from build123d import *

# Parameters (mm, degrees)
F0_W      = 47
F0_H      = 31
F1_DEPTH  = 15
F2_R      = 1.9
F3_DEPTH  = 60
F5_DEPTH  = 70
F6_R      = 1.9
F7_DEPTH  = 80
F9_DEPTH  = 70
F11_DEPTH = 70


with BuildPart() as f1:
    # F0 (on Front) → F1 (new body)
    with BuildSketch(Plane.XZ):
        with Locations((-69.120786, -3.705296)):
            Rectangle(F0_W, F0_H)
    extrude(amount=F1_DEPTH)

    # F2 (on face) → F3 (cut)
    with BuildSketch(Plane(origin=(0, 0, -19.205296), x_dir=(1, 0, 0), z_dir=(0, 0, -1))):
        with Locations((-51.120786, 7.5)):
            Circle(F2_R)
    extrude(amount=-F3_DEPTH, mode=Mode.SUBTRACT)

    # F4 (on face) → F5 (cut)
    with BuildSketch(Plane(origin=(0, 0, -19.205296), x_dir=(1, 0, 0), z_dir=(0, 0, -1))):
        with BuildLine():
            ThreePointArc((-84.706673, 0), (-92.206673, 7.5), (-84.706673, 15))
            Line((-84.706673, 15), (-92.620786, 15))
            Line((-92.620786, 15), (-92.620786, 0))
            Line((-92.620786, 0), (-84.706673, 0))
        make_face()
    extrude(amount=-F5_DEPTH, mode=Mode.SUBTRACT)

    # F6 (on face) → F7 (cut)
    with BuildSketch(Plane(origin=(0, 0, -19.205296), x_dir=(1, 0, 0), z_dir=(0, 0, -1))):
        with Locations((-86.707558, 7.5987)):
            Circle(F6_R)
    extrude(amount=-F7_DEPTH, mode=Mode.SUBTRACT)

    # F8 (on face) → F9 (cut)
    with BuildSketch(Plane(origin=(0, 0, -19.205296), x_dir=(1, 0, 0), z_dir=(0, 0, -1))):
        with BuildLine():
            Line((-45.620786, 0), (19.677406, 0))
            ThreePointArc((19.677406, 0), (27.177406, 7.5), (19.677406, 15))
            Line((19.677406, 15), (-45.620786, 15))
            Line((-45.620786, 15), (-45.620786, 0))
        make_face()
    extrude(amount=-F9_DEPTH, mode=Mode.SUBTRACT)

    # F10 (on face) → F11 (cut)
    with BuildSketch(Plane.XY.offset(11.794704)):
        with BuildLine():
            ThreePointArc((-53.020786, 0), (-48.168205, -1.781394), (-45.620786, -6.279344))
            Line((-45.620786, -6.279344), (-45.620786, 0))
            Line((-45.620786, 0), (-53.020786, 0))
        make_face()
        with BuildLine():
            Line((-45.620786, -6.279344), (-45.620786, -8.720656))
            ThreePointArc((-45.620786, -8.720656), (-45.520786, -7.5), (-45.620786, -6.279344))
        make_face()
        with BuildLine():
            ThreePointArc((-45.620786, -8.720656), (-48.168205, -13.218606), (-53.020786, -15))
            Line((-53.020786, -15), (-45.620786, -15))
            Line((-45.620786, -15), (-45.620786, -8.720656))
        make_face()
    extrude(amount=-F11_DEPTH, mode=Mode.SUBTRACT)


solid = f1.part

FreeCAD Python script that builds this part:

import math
import FreeCAD as App
import Part
import Sketcher

V = App.Vector
Q = App.Units.Quantity


def add_polygon(sketch, points):
    """Adds a closed chain of lines whose ends are joined by coincident constraints."""
    first, n = sketch.GeometryCount, len(points)
    for a, b in zip(points, points[1:] + points[:1]):
        sketch.addGeometry(Part.LineSegment(App.Vector(*a, 0), App.Vector(*b, 0)), False)
    for i in range(n):
        sketch.addConstraint(Sketcher.Constraint("Coincident", first + i, 2, first + (i + 1) % n, 1))

doc = App.newDocument("Part")
params = doc.addObject("Spreadsheet::Sheet", "Params")
for row, (alias, value) in enumerate([
    ("sketch1_width", "47 mm"),
    ("sketch1_height", "31 mm"),
    ("pad1_length", "15 mm"),
    ("sketch2_diameter", "3.8 mm"),
    ("pocket1_length", "60 mm"),
    ("sketch3_radius", "7.5 mm"),
    ("pocket2_length", "70 mm"),
    ("sketch4_diameter", "3.8 mm"),
    ("pocket3_length", "80 mm"),
    ("sketch5_radius", "7.5 mm"),
    ("pocket4_length", "70 mm"),
    ("sketch6_radius", "7.500001 mm"),
    ("sketch6_width", "7.4 mm"),
    ("pocket5_length", "70 mm"),
], start=1):
    params.set(f"A{row}", alias)
    params.set(f"B{row}", "=" + value)
    params.setAlias(f"B{row}", alias)

body = doc.addObject("PartDesign::Body", "Body")

# Sketch on XZ plane
sketch1 = body.newObject("Sketcher::SketchObject", "Sketch")
sketch1.AttachmentSupport = (doc.getObject("XZ_Plane"), [""])
sketch1.MapMode = "FlatFace"
add_polygon(sketch1, [(-93, 12), (-93, -19), (-46, -19), (-46, 12)])  # lines 0-3
sketch1.addConstraint([
    Sketcher.Constraint("Vertical", 0),
    Sketcher.Constraint("Horizontal", 1),
    Sketcher.Constraint("Vertical", 2),
    Sketcher.Constraint("Horizontal", 3),
    Sketcher.Constraint("DistanceX", 1, 1, 1, 2, Q("47 mm")),
    Sketcher.Constraint("DistanceY", 0, 2, 0, 1, Q("31 mm")),
    Sketcher.Constraint("DistanceX", 0, 2, -1, 1, Q("92.620786 mm")),
    Sketcher.Constraint("DistanceY", 0, 2, -1, 1, Q("19.205296 mm")),
])
sketch1.setExpression("Constraints[8]", "Params.sketch1_width")
sketch1.setExpression("Constraints[9]", "Params.sketch1_height")
pad1 = body.newObject("PartDesign::Pad", "Pad")
pad1.Profile = sketch1
pad1.setExpression("Length", "Params.pad1_length")

# Sketch on XY plane
sketch2 = body.newObject("Sketcher::SketchObject", "Sketch001")
sketch2.AttachmentSupport = (doc.getObject("XY_Plane"), [""])
sketch2.MapMode = "FlatFace"
sketch2.AttachmentOffset = App.Placement(V(0, 0, -19.205296), App.Rotation())
sketch2.addGeometry(Part.Circle(V(-51.1, -7.5, 0), V(0, 0, 1), 1.9), False)
sketch2.addConstraint([
    Sketcher.Constraint("Diameter", 0, Q("3.8 mm")),
    Sketcher.Constraint("DistanceY", 0, 3, -1, 1, Q("7.5 mm")),
    Sketcher.Constraint("DistanceX", 0, 3, -1, 1, Q("51.120786 mm")),
])
sketch2.setExpression("Constraints[0]", "Params.sketch2_diameter")
pocket1 = body.newObject("PartDesign::Pocket", "Pocket")
pocket1.Profile = sketch2
pocket1.setExpression("Length", "Params.pocket1_length")
pocket1.Reversed = True

# Sketch on XY plane
sketch3 = body.newObject("Sketcher::SketchObject", "Sketch002")
sketch3.AttachmentSupport = (doc.getObject("XY_Plane"), [""])
sketch3.MapMode = "FlatFace"
sketch3.AttachmentOffset = App.Placement(V(0, 0, -19.205296), App.Rotation())
sketch3.addGeometry([
    Part.ArcOfCircle(Part.Circle(V(-85, -8, 0), V(0, 0, 1), 8), math.radians(90), math.radians(270)),
    Part.LineSegment(V(-85, -15, 0), V(-93, -15, 0)),
    Part.LineSegment(V(-93, -15, 0), V(-93, 0, 0)),
    Part.LineSegment(V(-93, 0, 0), V(-85, 0, 0)),
], False)
sketch3.addConstraint([
    Sketcher.Constraint("Tangent", 0, 2, 1, 1),
    Sketcher.Constraint("Coincident", 1, 2, 2, 1),
    Sketcher.Constraint("Coincident", 2, 2, 3, 1),
    Sketcher.Constraint("Tangent", 3, 2, 0, 1),
    Sketcher.Constraint("Horizontal", 1),
    Sketcher.Constraint("Vertical", 2),
    Sketcher.Constraint("Horizontal", 3),
    Sketcher.Constraint("PointOnObject", 2, 2, -1),
    Sketcher.Constraint("Radius", 0, Q("7.5 mm")),
    Sketcher.Constraint("DistanceX", 1, 2, 1, 1, Q("7.914113 mm")),
    Sketcher.Constraint("DistanceX", 0, 3, -1, 1, Q("84.706673 mm")),
])
sketch3.setExpression("Constraints[8]", "Params.sketch3_radius")
pocket2 = body.newObject("PartDesign::Pocket", "Pocket001")
pocket2.Profile = sketch3
pocket2.setExpression("Length", "Params.pocket2_length")
pocket2.Reversed = True

# Sketch on XY plane
sketch4 = body.newObject("Sketcher::SketchObject", "Sketch003")
sketch4.AttachmentSupport = (doc.getObject("XY_Plane"), [""])
sketch4.MapMode = "FlatFace"
sketch4.AttachmentOffset = App.Placement(V(0, 0, -19.205296), App.Rotation())
sketch4.addGeometry(Part.Circle(V(-86.7, -7.6, 0), V(0, 0, 1), 1.9), False)
sketch4.addConstraint([
    Sketcher.Constraint("Diameter", 0, Q("3.8 mm")),
    Sketcher.Constraint("DistanceY", 0, 3, -1, 1, Q("7.5987 mm")),
    Sketcher.Constraint("DistanceX", 0, 3, -1, 1, Q("86.707558 mm")),
])
sketch4.setExpression("Constraints[0]", "Params.sketch4_diameter")
pocket3 = body.newObject("PartDesign::Pocket", "Pocket002")
pocket3.Profile = sketch4
pocket3.setExpression("Length", "Params.pocket3_length")
pocket3.Reversed = True

# Sketch on XY plane
sketch5 = body.newObject("Sketcher::SketchObject", "Sketch004")
sketch5.AttachmentSupport = (doc.getObject("XY_Plane"), [""])
sketch5.MapMode = "FlatFace"
sketch5.AttachmentOffset = App.Placement(V(0, 0, -19.205296), App.Rotation())
sketch5.addGeometry([
    Part.LineSegment(V(-46, 0, 0), V(20, 0, 0)),
    Part.ArcOfCircle(Part.Circle(V(20, -8, 0), V(0, 0, 1), 8), math.radians(-90), math.radians(90)),
    Part.LineSegment(V(20, -15, 0), V(-46, -15, 0)),
    Part.LineSegment(V(-46, -15, 0), V(-46, 0, 0)),
], False)
sketch5.addConstraint([
    Sketcher.Constraint("Tangent", 0, 2, 1, 2),
    Sketcher.Constraint("Tangent", 1, 1, 2, 1),
    Sketcher.Constraint("Coincident", 2, 2, 3, 1),
    Sketcher.Constraint("Coincident", 3, 2, 0, 1),
    Sketcher.Constraint("Horizontal", 0),
    Sketcher.Constraint("Horizontal", 2),
    Sketcher.Constraint("Vertical", 3),
    Sketcher.Constraint("PointOnObject", 0, 2, -1),
    Sketcher.Constraint("Radius", 1, Q("7.5 mm")),
    Sketcher.Constraint("DistanceX", 0, 1, 0, 2, Q("65.298192 mm")),
    Sketcher.Constraint("DistanceX", -1, 1, 1, 3, Q("19.677406 mm")),
])
sketch5.setExpression("Constraints[8]", "Params.sketch5_radius")
pocket4 = body.newObject("PartDesign::Pocket", "Pocket003")
pocket4.Profile = sketch5
pocket4.setExpression("Length", "Params.pocket4_length")
pocket4.Reversed = True

# Sketch on XY plane
sketch6 = body.newObject("Sketcher::SketchObject", "Sketch005")
sketch6.AttachmentSupport = (doc.getObject("XY_Plane"), [""])
sketch6.MapMode = "FlatFace"
sketch6.AttachmentOffset = App.Placement(V(0, 0, 11.794704), App.Rotation())
sketch6.addGeometry([
    Part.ArcOfCircle(Part.Circle(V(-53, -7.5, 0), V(0, 0, 1), 7.5), math.radians(9), math.radians(90)),  # 0
    Part.LineSegment(V(-45.6, -6.3, 0), V(-45.6, 0, 0)),  # 1
    Part.LineSegment(V(-45.6, 0, 0), V(-53, 0, 0)),  # 2
    Part.LineSegment(V(-45.6, -6.3, 0), V(-45.6, -8.7, 0)),  # 3
    Part.ArcOfCircle(Part.Circle(V(-53, -7.5, 0), V(0, 0, 1), 7.5), math.radians(-9.37), math.radians(9.37)),  # 4
    Part.ArcOfCircle(Part.Circle(V(-53, -7.5, 0), V(0, 0, 1), 7.5), math.radians(-90), math.radians(-9)),  # 5
    Part.LineSegment(V(-53, -15, 0), V(-45.6, -15, 0)),  # 6
    Part.LineSegment(V(-45.6, -15, 0), V(-45.6, -8.7, 0)),  # 7
], False)
sketch6.addConstraint([
    Sketcher.Constraint("Coincident", 0, 1, 1, 1),
    Sketcher.Constraint("Coincident", 1, 2, 2, 1),
    Sketcher.Constraint("Tangent", 2, 2, 0, 2),
    Sketcher.Constraint("Coincident", 3, 1, 4, 2),
    Sketcher.Constraint("Coincident", 4, 1, 3, 2),
    Sketcher.Constraint("Tangent", 5, 1, 6, 1),
    Sketcher.Constraint("Coincident", 6, 2, 7, 1),
    Sketcher.Constraint("Coincident", 7, 2, 5, 2),
    Sketcher.Constraint("Vertical", 1),
    Sketcher.Constraint("Horizontal", 2),
    Sketcher.Constraint("Vertical", 3),
    Sketcher.Constraint("Horizontal", 6),
    Sketcher.Constraint("Vertical", 7),
    Sketcher.Constraint("Coincident", 4, 3, 0, 3),
    Sketcher.Constraint("Coincident", 5, 3, 0, 3),
    Sketcher.Constraint("Coincident", 3, 1, 0, 1),
    Sketcher.Constraint("Coincident", 7, 2, 4, 1),
    Sketcher.Constraint("PointOnObject", 1, 2, -1),
    Sketcher.Constraint("Radius", 0, Q("7.500001 mm")),
    Sketcher.Constraint("DistanceX", 2, 2, 2, 1, Q("7.4 mm")),
    Sketcher.Constraint("DistanceX", 4, 3, -1, 1, Q("53.020791 mm")),
])
sketch6.setExpression("Constraints[18]", "Params.sketch6_radius")
sketch6.setExpression("Constraints[19]", "Params.sketch6_width")
pocket5 = body.newObject("PartDesign::Pocket", "Pocket004")
pocket5.Profile = sketch6
pocket5.setExpression("Length", "Params.pocket5_length")

doc.recompute()
